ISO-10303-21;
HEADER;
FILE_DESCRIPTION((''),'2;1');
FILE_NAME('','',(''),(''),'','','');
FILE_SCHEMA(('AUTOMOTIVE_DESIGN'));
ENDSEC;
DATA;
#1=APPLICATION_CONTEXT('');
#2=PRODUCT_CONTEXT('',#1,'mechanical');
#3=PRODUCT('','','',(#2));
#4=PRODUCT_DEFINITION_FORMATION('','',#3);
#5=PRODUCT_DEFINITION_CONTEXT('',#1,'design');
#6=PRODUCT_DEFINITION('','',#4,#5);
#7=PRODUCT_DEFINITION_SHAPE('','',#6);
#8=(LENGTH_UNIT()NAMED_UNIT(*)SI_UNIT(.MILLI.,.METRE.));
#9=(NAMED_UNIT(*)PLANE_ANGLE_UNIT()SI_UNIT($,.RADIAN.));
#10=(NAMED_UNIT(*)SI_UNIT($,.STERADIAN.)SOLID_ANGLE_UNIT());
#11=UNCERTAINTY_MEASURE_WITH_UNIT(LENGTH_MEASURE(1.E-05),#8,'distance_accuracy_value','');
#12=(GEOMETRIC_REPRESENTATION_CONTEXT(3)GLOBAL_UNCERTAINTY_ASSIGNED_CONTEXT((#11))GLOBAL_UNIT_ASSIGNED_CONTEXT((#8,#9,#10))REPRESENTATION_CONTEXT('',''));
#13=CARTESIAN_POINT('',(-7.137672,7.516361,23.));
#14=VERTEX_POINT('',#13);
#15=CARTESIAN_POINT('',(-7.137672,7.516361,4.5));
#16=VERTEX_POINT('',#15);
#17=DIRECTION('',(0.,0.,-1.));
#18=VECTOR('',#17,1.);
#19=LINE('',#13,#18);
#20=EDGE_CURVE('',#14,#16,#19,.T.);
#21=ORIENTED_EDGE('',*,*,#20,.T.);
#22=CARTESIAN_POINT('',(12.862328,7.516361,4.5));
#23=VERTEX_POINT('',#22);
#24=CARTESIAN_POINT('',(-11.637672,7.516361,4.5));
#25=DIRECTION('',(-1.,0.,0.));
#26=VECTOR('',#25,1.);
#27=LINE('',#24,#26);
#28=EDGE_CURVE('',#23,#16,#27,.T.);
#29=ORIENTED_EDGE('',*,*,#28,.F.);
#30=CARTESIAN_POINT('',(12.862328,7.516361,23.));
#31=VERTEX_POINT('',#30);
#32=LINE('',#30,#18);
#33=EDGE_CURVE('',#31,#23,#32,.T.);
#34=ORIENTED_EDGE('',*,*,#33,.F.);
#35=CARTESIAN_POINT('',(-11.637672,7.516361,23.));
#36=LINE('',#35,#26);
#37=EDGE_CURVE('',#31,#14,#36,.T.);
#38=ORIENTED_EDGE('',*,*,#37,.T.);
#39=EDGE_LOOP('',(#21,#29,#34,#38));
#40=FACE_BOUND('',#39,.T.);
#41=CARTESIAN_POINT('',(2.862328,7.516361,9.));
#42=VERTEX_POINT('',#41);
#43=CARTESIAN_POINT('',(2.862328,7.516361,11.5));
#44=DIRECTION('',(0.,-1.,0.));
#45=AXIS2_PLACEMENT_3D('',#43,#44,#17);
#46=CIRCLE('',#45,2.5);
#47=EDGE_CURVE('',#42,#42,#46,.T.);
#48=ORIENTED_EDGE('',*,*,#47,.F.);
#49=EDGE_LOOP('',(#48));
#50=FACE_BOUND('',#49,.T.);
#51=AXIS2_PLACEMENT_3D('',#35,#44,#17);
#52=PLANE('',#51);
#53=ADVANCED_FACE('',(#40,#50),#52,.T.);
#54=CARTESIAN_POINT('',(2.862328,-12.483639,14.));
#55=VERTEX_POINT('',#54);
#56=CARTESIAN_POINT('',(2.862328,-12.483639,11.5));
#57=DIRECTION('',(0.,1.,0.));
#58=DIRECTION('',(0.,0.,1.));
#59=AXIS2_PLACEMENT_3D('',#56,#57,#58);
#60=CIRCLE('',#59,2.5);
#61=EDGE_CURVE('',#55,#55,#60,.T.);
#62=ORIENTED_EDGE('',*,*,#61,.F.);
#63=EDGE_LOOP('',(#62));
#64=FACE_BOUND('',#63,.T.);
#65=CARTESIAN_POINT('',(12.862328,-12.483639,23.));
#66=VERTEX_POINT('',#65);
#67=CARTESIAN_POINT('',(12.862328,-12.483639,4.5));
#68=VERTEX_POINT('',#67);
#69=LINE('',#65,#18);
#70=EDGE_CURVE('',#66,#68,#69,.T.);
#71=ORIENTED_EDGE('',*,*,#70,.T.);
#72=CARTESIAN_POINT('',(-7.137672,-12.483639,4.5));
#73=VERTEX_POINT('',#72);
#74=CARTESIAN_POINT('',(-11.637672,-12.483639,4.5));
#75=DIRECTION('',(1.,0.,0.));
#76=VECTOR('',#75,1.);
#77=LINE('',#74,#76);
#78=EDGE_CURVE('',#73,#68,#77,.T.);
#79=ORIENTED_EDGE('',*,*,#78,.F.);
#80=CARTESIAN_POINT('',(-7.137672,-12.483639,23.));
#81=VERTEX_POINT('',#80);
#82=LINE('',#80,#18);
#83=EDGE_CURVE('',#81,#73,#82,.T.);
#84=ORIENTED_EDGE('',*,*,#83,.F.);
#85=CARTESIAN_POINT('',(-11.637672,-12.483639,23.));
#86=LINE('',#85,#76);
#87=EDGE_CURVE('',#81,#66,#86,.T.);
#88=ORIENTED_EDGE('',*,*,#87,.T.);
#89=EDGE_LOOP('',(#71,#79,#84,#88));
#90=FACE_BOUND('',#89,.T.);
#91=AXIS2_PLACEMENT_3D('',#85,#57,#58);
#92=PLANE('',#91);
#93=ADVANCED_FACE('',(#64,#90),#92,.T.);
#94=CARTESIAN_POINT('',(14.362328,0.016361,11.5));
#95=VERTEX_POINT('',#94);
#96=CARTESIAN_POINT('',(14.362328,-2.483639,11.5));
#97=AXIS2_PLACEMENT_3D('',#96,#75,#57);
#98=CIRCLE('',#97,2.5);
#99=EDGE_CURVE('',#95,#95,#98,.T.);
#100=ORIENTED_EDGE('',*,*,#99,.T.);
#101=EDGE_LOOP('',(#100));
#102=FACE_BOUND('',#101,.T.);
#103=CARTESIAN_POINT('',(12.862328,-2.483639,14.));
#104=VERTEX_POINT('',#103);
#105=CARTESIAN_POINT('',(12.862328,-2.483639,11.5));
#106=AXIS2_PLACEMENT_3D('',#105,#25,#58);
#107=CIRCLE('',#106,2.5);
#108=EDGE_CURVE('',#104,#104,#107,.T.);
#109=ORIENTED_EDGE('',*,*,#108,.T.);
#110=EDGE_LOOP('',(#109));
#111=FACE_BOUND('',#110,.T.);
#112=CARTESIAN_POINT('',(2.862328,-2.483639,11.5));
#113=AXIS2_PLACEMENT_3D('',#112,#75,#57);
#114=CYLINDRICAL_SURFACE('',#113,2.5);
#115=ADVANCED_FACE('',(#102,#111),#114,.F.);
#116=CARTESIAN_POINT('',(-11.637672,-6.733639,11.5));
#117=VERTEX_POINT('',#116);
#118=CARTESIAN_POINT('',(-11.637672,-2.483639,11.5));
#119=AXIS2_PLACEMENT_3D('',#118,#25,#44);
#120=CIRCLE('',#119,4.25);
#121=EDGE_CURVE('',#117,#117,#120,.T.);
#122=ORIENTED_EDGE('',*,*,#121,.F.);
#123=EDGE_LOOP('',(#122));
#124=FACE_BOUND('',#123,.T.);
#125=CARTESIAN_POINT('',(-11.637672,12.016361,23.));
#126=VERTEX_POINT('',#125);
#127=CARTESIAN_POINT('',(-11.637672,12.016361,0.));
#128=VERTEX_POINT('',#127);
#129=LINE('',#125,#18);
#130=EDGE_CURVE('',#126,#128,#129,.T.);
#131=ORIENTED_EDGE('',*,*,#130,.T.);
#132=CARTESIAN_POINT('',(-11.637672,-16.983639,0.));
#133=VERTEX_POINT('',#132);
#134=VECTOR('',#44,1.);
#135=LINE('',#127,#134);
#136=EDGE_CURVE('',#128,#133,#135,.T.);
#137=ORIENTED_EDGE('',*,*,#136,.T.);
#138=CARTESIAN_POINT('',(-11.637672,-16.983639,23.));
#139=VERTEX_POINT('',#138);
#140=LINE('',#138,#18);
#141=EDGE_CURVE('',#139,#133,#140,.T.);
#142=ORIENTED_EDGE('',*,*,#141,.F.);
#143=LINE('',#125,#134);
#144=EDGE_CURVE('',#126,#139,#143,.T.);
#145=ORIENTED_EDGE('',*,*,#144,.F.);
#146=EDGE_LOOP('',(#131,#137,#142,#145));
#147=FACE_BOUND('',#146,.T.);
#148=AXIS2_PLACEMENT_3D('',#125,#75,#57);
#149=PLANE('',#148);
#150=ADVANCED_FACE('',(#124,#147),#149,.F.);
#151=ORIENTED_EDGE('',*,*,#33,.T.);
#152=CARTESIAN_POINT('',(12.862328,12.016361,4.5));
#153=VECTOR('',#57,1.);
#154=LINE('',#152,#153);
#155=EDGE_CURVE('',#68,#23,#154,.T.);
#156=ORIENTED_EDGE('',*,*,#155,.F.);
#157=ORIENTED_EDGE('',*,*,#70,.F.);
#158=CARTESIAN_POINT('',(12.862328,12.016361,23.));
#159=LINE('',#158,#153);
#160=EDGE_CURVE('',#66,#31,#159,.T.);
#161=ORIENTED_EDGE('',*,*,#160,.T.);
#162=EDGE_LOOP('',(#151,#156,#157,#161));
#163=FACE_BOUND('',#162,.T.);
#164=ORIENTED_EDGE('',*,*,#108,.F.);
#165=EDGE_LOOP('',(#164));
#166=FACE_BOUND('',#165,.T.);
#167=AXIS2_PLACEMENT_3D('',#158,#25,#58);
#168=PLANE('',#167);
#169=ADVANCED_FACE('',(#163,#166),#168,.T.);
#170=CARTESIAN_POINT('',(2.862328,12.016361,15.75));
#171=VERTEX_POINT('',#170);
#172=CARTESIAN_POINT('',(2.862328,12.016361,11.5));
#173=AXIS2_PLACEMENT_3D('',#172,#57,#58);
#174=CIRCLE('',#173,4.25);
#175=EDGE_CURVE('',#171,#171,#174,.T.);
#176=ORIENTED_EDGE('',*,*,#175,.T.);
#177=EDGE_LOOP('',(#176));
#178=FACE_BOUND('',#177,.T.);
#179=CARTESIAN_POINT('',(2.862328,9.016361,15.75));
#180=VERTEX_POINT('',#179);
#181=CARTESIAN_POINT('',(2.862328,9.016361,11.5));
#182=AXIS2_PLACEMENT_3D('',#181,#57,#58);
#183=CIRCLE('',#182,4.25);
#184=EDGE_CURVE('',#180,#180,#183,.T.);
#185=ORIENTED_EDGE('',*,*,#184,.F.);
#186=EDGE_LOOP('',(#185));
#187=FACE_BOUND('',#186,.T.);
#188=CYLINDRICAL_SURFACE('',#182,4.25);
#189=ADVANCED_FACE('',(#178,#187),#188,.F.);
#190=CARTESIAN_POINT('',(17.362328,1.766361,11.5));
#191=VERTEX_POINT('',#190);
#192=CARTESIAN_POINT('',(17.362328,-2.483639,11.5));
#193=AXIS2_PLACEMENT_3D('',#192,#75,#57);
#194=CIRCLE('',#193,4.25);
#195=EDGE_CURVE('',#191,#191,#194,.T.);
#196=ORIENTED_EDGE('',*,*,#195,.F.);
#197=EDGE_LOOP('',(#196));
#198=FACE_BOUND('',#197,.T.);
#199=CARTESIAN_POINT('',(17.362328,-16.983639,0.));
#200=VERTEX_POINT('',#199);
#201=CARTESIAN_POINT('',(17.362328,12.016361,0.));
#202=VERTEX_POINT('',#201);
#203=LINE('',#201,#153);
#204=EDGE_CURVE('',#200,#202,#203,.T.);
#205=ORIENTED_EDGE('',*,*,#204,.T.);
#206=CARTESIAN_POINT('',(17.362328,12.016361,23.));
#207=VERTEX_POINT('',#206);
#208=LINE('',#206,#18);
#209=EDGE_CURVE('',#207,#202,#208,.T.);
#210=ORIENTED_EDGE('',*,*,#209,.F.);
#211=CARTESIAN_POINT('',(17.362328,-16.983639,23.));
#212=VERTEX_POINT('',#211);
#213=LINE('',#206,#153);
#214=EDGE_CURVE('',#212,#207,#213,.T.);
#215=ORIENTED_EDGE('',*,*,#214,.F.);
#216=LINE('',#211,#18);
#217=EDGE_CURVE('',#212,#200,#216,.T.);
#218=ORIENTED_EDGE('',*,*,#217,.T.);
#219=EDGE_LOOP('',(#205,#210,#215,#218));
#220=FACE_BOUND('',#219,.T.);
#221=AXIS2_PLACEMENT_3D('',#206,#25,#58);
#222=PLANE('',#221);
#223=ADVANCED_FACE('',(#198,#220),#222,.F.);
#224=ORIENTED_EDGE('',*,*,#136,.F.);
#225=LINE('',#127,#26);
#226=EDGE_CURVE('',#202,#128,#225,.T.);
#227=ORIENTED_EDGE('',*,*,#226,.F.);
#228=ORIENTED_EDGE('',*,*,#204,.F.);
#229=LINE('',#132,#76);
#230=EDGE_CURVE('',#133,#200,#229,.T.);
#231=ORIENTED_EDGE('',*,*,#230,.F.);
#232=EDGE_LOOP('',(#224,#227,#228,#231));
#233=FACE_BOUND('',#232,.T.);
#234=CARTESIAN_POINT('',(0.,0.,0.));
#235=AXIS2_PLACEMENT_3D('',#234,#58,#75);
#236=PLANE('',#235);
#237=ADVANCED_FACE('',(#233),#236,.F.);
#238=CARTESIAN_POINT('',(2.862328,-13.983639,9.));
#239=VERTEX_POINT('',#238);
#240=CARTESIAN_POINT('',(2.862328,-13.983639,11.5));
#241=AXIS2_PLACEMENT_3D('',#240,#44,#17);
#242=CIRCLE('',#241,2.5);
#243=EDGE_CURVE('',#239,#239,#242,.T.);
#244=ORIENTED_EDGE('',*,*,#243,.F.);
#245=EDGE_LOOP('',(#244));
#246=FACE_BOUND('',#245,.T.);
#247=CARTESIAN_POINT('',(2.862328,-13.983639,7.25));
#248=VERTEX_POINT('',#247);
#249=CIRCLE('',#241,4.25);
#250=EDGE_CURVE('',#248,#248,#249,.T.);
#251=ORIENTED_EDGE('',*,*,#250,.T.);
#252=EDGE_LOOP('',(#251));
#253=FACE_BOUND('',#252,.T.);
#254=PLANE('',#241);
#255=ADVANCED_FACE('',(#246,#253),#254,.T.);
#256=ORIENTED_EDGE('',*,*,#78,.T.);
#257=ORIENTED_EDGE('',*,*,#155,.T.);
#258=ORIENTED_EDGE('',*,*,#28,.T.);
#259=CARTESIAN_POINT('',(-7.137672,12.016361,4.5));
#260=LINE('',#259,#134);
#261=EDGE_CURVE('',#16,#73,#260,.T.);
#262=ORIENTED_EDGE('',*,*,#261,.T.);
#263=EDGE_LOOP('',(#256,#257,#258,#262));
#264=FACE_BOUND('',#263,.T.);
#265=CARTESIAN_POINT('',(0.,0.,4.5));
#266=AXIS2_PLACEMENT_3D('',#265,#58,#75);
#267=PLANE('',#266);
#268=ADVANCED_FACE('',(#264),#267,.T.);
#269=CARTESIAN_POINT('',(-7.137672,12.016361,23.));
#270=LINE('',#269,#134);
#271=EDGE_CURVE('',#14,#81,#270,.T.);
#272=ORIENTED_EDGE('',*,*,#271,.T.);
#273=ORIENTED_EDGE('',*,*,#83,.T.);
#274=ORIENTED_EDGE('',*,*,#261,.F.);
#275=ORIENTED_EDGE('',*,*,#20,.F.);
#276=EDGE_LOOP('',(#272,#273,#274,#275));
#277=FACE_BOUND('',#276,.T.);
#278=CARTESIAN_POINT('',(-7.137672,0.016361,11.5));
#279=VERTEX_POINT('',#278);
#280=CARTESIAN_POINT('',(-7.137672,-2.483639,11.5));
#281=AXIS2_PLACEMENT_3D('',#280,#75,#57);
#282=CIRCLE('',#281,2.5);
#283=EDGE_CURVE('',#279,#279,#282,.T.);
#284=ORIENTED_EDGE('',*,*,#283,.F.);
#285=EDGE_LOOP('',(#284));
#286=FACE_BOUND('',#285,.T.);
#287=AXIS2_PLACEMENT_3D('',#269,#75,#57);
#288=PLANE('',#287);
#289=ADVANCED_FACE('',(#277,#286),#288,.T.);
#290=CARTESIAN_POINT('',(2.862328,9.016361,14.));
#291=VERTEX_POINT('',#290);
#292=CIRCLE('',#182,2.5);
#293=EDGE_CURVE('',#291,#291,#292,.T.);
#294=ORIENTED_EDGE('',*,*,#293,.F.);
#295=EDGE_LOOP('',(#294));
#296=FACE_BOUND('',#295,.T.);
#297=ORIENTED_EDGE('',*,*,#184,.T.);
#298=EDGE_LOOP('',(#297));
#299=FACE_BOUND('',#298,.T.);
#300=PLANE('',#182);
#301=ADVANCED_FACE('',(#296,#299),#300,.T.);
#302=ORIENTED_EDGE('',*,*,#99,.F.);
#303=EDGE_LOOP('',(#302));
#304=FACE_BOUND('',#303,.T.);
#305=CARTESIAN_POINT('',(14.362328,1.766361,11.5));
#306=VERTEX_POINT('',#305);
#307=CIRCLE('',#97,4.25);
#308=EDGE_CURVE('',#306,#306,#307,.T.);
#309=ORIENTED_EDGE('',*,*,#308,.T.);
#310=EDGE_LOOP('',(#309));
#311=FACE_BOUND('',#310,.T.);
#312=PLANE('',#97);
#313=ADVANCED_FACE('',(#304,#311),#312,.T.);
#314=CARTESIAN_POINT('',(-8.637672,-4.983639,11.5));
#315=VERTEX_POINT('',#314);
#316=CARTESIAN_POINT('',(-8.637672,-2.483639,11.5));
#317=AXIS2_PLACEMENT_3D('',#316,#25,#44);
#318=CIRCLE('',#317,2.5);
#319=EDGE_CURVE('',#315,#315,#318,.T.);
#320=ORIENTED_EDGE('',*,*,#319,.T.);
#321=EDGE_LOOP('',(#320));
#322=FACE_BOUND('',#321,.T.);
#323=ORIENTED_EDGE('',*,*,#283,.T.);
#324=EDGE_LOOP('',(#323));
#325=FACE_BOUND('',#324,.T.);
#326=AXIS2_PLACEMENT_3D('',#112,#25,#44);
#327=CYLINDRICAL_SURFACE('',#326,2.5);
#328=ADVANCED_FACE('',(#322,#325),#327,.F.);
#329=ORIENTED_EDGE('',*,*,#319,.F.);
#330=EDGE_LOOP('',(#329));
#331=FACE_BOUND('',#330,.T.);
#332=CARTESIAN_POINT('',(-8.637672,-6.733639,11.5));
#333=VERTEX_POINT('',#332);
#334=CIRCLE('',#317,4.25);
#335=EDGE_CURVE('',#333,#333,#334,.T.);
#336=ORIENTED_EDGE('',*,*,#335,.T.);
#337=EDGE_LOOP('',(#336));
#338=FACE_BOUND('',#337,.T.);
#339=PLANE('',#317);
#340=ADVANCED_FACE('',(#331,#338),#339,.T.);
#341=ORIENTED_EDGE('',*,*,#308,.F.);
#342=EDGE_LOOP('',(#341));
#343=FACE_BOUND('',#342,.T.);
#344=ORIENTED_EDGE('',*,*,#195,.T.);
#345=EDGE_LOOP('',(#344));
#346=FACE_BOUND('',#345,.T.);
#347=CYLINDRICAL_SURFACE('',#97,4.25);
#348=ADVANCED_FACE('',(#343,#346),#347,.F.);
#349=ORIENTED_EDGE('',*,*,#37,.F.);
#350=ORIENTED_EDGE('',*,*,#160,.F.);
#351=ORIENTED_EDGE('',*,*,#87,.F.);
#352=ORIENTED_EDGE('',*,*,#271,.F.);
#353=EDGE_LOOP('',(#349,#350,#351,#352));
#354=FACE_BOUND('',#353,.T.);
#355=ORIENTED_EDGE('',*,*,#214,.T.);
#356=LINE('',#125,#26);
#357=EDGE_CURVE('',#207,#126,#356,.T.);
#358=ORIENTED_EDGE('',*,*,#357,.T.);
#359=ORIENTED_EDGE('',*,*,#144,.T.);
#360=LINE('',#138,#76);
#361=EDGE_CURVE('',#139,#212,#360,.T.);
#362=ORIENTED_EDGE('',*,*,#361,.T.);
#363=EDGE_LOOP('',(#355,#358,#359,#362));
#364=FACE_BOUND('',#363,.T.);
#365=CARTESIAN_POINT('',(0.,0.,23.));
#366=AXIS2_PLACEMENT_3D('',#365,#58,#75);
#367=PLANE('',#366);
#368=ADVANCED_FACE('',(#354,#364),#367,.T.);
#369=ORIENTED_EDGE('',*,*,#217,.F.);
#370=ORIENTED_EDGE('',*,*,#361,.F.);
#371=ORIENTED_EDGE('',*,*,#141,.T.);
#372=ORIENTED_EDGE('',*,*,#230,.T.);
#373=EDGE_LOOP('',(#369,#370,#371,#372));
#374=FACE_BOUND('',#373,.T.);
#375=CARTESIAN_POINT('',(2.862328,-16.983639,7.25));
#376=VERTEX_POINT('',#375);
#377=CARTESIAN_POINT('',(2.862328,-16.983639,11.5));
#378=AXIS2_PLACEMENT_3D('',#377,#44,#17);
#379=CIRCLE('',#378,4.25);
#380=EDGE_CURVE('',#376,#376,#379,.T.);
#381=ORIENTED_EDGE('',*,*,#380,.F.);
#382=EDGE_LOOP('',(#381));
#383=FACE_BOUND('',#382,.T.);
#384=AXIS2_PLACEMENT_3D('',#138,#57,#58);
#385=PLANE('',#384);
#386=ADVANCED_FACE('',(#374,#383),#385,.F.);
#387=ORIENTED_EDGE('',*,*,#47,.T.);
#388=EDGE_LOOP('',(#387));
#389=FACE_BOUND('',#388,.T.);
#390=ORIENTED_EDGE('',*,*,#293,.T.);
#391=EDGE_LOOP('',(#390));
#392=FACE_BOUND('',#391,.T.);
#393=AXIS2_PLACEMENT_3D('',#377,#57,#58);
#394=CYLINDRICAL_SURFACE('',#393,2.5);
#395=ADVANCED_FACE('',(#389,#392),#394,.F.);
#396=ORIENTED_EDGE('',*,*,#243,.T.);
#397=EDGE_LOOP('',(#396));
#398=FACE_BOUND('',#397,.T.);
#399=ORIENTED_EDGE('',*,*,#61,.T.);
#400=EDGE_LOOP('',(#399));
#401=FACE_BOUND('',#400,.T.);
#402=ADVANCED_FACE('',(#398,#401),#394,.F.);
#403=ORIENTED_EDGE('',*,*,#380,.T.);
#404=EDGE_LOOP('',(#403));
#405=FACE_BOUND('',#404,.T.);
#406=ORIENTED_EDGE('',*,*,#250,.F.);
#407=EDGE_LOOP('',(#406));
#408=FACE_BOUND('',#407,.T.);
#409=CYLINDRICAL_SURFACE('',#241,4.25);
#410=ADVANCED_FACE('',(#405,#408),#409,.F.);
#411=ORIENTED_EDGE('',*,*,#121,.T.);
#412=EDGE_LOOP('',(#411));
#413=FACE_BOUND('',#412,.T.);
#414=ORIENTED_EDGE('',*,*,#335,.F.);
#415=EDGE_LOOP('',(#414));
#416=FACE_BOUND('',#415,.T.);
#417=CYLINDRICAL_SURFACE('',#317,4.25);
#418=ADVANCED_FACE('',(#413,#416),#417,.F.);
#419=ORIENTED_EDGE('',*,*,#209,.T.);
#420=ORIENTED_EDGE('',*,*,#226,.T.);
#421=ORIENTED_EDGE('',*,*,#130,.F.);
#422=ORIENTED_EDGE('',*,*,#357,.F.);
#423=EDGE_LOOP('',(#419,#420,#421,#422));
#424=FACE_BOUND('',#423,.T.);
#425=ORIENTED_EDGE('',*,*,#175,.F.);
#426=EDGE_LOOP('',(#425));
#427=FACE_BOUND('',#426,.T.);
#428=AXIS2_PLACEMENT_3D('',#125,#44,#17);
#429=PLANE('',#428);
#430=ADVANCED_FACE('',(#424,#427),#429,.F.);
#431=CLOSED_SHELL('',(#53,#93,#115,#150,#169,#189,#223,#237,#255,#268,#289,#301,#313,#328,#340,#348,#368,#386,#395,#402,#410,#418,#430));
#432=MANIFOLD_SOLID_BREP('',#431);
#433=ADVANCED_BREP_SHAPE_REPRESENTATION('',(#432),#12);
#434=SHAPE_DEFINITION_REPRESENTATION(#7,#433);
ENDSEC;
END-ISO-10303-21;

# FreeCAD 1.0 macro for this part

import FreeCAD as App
import Part
import Sketcher
Q = App.Units.Quantity


def faces_at(feature, points):
    """Names of the faces that lie closest to the given points."""
    faces = feature.Shape.Faces
    near = lambda p: min(range(len(faces)), key=lambda i: faces[i].distToShape(Part.Vertex(*p))[0])
    return sorted({f"Face{near(p) + 1}" for p in points})


def add_polygon(sketch, points):
    """Adds a closed chain of lines whose ends are joined by coincident constraints."""
    first, n = sketch.GeometryCount, len(points)
    for a, b in zip(points, points[1:] + points[:1]):
        sketch.addGeometry(Part.LineSegment(App.Vector(*a, 0), App.Vector(*b, 0)), False)
    for i in range(n):
        sketch.addConstraint(Sketcher.Constraint("Coincident", first + i, 2, first + (i + 1) % n, 1))

doc = App.newDocument("Part")
body = doc.addObject("PartDesign::Body", "Body")

sketch1 = doc.addObject("Sketcher::SketchObject", "Sketch")
body.addObject(sketch1)
sketch1.AttachmentSupport = (doc.XY_Plane, [""])
sketch1.MapMode = "FlatFace"
add_polygon(sketch1, [(-12, 12), (-12, -17), (17, -17), (17, 12)])
sketch1.addConstraint(Sketcher.Constraint("Vertical", 0))
sketch1.addConstraint(Sketcher.Constraint("Horizontal", 1))
sketch1.addConstraint(Sketcher.Constraint("Vertical", 2))
sketch1.addConstraint(Sketcher.Constraint("Horizontal", 3))
sketch1.addConstraint(Sketcher.Constraint("Equal", 3, 0))
sketch1.addConstraint(Sketcher.Constraint("DistanceX", 1, 1, 1, 2, Q("29 mm")))
sketch1.addConstraint(Sketcher.Constraint("DistanceY", 0, 2, -1, 1, Q("16.983639 mm")))
sketch1.addConstraint(Sketcher.Constraint("DistanceX", 0, 2, -1, 1, Q("11.637672 mm")))
pad1 = doc.addObject("PartDesign::Pad", "Pad")
body.addObject(pad1)
pad1.Profile = sketch1
pad1.Length = 23
doc.recompute()

thickness = doc.addObject("PartDesign::Thickness", "Thickness")
body.addObject(thickness)
thickness.Base = (pad1, faces_at(pad1, [(2.862, -2.484, 23)]))
thickness.Value = 4.5
thickness.Reversed = True
thickness.Join = "Intersection"

sketch2 = doc.addObject("Sketcher::SketchObject", "Sketch001")
body.addObject(sketch2)
sketch2.AttachmentSupport = (doc.XZ_Plane, [""])
sketch2.MapMode = "FlatFace"
sketch2.AttachmentOffset = App.Placement(App.Vector(0, 0, 16.983639), App.Rotation())
sketch2.addGeometry(Part.Circle(App.Vector(2.9, 11.5, 0), App.Vector(0, 0, 1), 4.2), False)
sketch2.addConstraint(Sketcher.Constraint("Diameter", 0, Q("8.5 mm")))
sketch2.addConstraint(Sketcher.Constraint("DistanceY", -1, 1, 0, 3, Q("11.5 mm")))
sketch2.addConstraint(Sketcher.Constraint("DistanceX", -1, 1, 0, 3, Q("2.862328 mm")))
pocket1 = doc.addObject("PartDesign::Pocket", "Pocket")
body.addObject(pocket1)
pocket1.Profile = sketch2
pocket1.Length = 3

sketch3 = doc.addObject("Sketcher::SketchObject", "Sketch002")
body.addObject(sketch3)
sketch3.AttachmentSupport = (doc.YZ_Plane, [""])
sketch3.MapMode = "FlatFace"
sketch3.AttachmentOffset = App.Placement(App.Vector(0, 0, 17.362328), App.Rotation())
sketch3.addGeometry(Part.Circle(App.Vector(-2.5, 11.5, 0), App.Vector(0, 0, 1), 4.2), False)
sketch3.addConstraint(Sketcher.Constraint("Diameter", 0, Q("8.5 mm")))
sketch3.addConstraint(Sketcher.Constraint("DistanceY", -1, 1, 0, 3, Q("11.5 mm")))
sketch3.addConstraint(Sketcher.Constraint("DistanceX", 0, 3, -1, 1, Q("2.483639 mm")))
pocket2 = doc.addObject("PartDesign::Pocket", "Pocket001")
body.addObject(pocket2)
pocket2.Profile = sketch3
pocket2.Length = 3

sketch4 = doc.addObject("Sketcher::SketchObject", "Sketch003")
body.addObject(sketch4)
sketch4.AttachmentSupport = (doc.XZ_Plane, [""])
sketch4.MapMode = "FlatFace"
sketch4.AttachmentOffset = App.Placement(App.Vector(0, 0, -9.016361), App.Rotation())
sketch4.addGeometry(Part.Circle(App.Vector(2.9, 11.5, 0), App.Vector(0, 0, 1), 4.2), False)
sketch4.addConstraint(Sketcher.Constraint("Diameter", 0, Q("8.5 mm")))
sketch4.addConstraint(Sketcher.Constraint("DistanceY", -1, 1, 0, 3, Q("11.5 mm")))
sketch4.addConstraint(Sketcher.Constraint("DistanceX", -1, 1, 0, 3, Q("2.862328 mm")))
pocket3 = doc.addObject("PartDesign::Pocket", "Pocket002")
body.addObject(pocket3)
pocket3.Profile = sketch4
pocket3.Length = 3

sketch5 = doc.addObject("Sketcher::SketchObject", "Sketch004")
body.addObject(sketch5)
sketch5.AttachmentSupport = (doc.YZ_Plane, [""])
sketch5.MapMode = "FlatFace"
sketch5.AttachmentOffset = App.Placement(App.Vector(0, 0, -8.637672), App.Rotation())
sketch5.addGeometry(Part.Circle(App.Vector(-2.5, 11.5, 0), App.Vector(0, 0, 1), 4.2), False)
sketch5.addConstraint(Sketcher.Constraint("Diameter", 0, Q("8.5 mm")))
sketch5.addConstraint(Sketcher.Constraint("DistanceY", -1, 1, 0, 3, Q("11.5 mm")))
sketch5.addConstraint(Sketcher.Constraint("DistanceX", 0, 3, -1, 1, Q("2.483639 mm")))
pocket4 = doc.addObject("PartDesign::Pocket", "Pocket003")
body.addObject(pocket4)
pocket4.Profile = sketch5
pocket4.Length = 3

sketch6 = doc.addObject("Sketcher::SketchObject", "Sketch005")
body.addObject(sketch6)
sketch6.AttachmentSupport = (doc.XZ_Plane, [""])
sketch6.MapMode = "FlatFace"
sketch6.AttachmentOffset = App.Placement(App.Vector(0, 0, -9.016361), App.Rotation())
sketch6.addGeometry(Part.Circle(App.Vector(2.9, 11.5, 0), App.Vector(0, 0, 1), 2.5), False)
sketch6.addConstraint(Sketcher.Constraint("Diameter", 0, Q("5 mm")))
sketch6.addConstraint(Sketcher.Constraint("DistanceY", -1, 1, 0, 3, Q("11.5 mm")))
sketch6.addConstraint(Sketcher.Constraint("DistanceX", -1, 1, 0, 3, Q("2.862328 mm")))
pocket5 = doc.addObject("PartDesign::Pocket", "Pocket004")
body.addObject(pocket5)
pocket5.Profile = sketch6
pocket5.Type = "ThroughAll"
pocket5.Reversed = True

sketch7 = doc.addObject("Sketcher::SketchObject", "Sketch006")
body.addObject(sketch7)
sketch7.AttachmentSupport = (doc.YZ_Plane, [""])
sketch7.MapMode = "FlatFace"
sketch7.AttachmentOffset = App.Placement(App.Vector(0, 0, 14.362328), App.Rotation())
sketch7.addGeometry(Part.Circle(App.Vector(-2.5, 11.5, 0), App.Vector(0, 0, 1), 2.5), False)
sketch7.addConstraint(Sketcher.Constraint("Diameter", 0, Q("5 mm")))
sketch7.addConstraint(Sketcher.Constraint("DistanceY", -1, 1, 0, 3, Q("11.5 mm")))
sketch7.addConstraint(Sketcher.Constraint("DistanceX", 0, 3, -1, 1, Q("2.483639 mm")))
pocket6 = doc.addObject("PartDesign::Pocket", "Pocket005")
body.addObject(pocket6)
pocket6.Profile = sketch7
pocket6.Length = 11.5

sketch8 = doc.addObject("Sketcher::SketchObject", "Sketch007")
body.addObject(sketch8)
sketch8.AttachmentSupport = (doc.YZ_Plane, [""])
sketch8.MapMode = "FlatFace"
sketch8.AttachmentOffset = App.Placement(App.Vector(0, 0, 2.862328), App.Rotation())
sketch8.addGeometry(Part.Circle(App.Vector(-2.5, 11.5, 0), App.Vector(0, 0, 1), 2.5), False)
sketch8.addConstraint(Sketcher.Constraint("Diameter", 0, Q("5 mm")))
sketch8.addConstraint(Sketcher.Constraint("DistanceY", -1, 1, 0, 3, Q("11.5 mm")))
sketch8.addConstraint(Sketcher.Constraint("DistanceX", 0, 3, -1, 1, Q("2.483639 mm")))
pocket7 = doc.addObject("PartDesign::Pocket", "Pocket006")
body.addObject(pocket7)
pocket7.Profile = sketch8
pocket7.Length = 11.5

doc.recompute()
